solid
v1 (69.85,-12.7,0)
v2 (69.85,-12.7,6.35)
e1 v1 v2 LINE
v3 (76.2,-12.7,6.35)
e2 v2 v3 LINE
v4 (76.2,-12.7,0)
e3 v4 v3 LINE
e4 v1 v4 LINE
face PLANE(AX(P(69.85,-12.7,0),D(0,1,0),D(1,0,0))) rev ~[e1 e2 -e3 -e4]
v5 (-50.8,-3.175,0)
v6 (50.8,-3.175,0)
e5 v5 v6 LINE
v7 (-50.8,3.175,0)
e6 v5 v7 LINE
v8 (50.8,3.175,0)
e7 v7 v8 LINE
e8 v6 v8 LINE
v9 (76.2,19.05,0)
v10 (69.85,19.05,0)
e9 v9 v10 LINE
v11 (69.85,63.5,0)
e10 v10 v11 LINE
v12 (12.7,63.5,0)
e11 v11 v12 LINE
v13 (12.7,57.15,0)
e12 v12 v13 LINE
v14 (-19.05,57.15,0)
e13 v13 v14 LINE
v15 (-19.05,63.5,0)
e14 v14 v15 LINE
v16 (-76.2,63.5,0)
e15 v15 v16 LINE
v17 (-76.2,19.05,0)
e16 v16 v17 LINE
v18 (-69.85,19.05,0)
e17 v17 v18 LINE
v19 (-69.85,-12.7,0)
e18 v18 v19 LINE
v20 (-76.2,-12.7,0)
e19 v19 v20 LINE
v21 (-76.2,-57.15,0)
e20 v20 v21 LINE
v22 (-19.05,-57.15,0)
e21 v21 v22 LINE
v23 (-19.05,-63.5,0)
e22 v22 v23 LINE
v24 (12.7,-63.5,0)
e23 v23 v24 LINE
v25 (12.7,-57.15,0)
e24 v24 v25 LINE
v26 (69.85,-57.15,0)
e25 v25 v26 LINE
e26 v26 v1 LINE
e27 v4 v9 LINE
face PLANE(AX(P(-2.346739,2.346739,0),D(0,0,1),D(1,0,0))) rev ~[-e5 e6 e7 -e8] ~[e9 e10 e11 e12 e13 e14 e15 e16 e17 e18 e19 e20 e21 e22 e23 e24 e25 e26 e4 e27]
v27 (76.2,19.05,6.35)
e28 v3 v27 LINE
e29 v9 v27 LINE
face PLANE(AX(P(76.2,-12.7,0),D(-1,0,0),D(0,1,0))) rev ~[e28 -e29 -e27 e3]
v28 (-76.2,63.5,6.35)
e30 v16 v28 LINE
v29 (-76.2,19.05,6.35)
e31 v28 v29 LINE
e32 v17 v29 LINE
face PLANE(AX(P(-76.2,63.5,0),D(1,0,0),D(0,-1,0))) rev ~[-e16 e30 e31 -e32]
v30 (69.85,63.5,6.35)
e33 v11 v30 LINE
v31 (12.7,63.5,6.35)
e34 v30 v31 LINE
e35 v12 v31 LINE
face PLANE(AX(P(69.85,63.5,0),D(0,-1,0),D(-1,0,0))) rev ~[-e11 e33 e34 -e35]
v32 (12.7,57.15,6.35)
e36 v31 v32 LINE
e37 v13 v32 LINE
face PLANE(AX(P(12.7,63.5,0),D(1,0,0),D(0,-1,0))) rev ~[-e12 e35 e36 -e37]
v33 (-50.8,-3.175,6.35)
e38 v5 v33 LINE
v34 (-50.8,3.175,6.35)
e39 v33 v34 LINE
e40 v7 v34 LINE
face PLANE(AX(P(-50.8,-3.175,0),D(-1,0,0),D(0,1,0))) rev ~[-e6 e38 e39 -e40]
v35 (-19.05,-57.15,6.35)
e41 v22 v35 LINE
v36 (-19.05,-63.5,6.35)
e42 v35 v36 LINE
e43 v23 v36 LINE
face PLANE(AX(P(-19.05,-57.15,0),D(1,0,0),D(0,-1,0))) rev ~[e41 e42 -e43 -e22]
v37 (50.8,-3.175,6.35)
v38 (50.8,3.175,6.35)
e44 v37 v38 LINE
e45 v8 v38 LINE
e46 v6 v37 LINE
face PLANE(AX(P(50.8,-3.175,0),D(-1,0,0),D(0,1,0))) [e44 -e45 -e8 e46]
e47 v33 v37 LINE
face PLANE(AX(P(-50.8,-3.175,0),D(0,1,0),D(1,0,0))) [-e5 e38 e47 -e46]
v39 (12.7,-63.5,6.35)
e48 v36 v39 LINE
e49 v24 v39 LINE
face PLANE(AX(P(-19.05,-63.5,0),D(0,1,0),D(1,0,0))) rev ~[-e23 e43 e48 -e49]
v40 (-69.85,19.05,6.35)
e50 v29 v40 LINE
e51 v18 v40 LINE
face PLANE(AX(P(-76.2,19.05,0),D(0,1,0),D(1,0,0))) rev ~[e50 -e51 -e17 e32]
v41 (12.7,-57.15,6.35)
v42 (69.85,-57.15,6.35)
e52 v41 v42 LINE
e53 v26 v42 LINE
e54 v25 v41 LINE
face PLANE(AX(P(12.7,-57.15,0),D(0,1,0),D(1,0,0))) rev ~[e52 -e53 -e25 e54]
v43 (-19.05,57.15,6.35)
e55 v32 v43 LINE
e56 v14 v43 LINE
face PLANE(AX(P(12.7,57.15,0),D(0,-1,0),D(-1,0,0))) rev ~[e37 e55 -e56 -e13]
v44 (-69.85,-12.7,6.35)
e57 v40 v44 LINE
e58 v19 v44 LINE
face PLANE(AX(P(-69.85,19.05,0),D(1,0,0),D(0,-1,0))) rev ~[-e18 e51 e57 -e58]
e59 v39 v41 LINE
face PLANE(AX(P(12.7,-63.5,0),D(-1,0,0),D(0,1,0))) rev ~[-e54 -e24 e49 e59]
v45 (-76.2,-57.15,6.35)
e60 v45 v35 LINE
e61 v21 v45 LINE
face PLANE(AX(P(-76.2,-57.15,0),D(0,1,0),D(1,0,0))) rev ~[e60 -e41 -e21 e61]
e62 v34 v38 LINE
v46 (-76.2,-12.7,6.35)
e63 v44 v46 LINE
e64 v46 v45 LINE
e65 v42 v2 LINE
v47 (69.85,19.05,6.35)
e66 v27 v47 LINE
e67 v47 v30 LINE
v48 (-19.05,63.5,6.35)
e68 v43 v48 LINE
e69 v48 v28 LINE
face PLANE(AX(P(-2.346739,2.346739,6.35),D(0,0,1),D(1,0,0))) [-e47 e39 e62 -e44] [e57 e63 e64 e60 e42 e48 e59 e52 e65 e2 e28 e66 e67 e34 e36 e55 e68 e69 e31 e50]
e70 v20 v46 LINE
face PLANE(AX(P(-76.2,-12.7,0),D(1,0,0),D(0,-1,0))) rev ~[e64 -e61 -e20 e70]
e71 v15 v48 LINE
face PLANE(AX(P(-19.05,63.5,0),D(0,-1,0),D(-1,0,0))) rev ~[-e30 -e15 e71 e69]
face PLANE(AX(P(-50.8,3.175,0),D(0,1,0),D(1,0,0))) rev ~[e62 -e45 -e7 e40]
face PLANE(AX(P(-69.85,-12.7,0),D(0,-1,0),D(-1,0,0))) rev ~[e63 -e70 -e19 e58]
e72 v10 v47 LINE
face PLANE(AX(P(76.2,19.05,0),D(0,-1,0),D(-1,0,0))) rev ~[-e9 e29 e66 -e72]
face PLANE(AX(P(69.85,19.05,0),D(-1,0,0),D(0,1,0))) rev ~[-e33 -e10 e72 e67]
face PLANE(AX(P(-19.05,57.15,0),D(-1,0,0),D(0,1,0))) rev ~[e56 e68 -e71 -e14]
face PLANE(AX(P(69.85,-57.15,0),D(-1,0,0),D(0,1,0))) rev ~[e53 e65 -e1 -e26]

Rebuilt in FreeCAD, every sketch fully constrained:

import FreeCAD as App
import Part
import Sketcher
Q = App.Units.Quantity

doc = App.newDocument("Part")
params = doc.addObject("Spreadsheet::Sheet", "Params")
for row, (alias, value) in enumerate([
    ("sketch1_width", "4 in"),
    ("pad1_length", "0.25 in"),
], start=1):
    params.set(f"A{row}", alias)
    params.set(f"B{row}", "=" + value)
    params.setAlias(f"B{row}", alias)

body = doc.addObject("PartDesign::Body", "Body")

sketch1 = doc.addObject("Sketcher::SketchObject", "Sketch")
body.addObject(sketch1)
sketch1.AttachmentSupport = (doc.XY_Plane, [""])
sketch1.MapMode = "FlatFace"
sketch1.addGeometry(Part.LineSegment(App.Vector(-76, 64, 0), App.Vector(-76, 19, 0)), False)
sketch1.addGeometry(Part.LineSegment(App.Vector(-76, 19, 0), App.Vector(-70, 19, 0)), False)
sketch1.addGeometry(Part.LineSegment(App.Vector(-70, 19, 0), App.Vector(-70, -13, 0)), False)
sketch1.addGeometry(Part.LineSegment(App.Vector(-70, -13, 0), App.Vector(-76, -13, 0)), False)
sketch1.addGeometry(Part.LineSegment(App.Vector(-76, -13, 0), App.Vector(-76, -57, 0)), False)
sketch1.addGeometry(Part.LineSegment(App.Vector(-76, -57, 0), App.Vector(-19, -57, 0)), False)
sketch1.addGeometry(Part.LineSegment(App.Vector(-19, -57, 0), App.Vector(-19, -64, 0)), False)
sketch1.addGeometry(Part.LineSegment(App.Vector(-19, -64, 0), App.Vector(13, -64, 0)), False)
sketch1.addGeometry(Part.LineSegment(App.Vector(13, -64, 0), App.Vector(13, -57, 0)), False)
sketch1.addGeometry(Part.LineSegment(App.Vector(13, -57, 0), App.Vector(70, -57, 0)), False)
sketch1.addGeometry(Part.LineSegment(App.Vector(70, -57, 0), App.Vector(70, -13, 0)), False)
sketch1.addGeometry(Part.LineSegment(App.Vector(70, -13, 0), App.Vector(76, -13, 0)), False)
sketch1.addGeometry(Part.LineSegment(App.Vector(76, -13, 0), App.Vector(76, 19, 0)), False)
sketch1.addGeometry(Part.LineSegment(App.Vector(76, 19, 0), App.Vector(70, 19, 0)), False)
sketch1.addGeometry(Part.LineSegment(App.Vector(70, 19, 0), App.Vector(70, 64, 0)), False)
sketch1.addGeometry(Part.LineSegment(App.Vector(70, 64, 0), App.Vector(13, 64, 0)), False)
sketch1.addGeometry(Part.LineSegment(App.Vector(13, 64, 0), App.Vector(13, 57, 0)), False)
sketch1.addGeometry(Part.LineSegment(App.Vector(13, 57, 0), App.Vector(-19, 57, 0)), False)
sketch1.addGeometry(Part.LineSegment(App.Vector(-19, 57, 0), App.Vector(-19, 64, 0)), False)
sketch1.addGeometry(Part.LineSegment(App.Vector(-19, 64, 0), App.Vector(-76, 64, 0)), False)
sketch1.addGeometry(Part.LineSegment(App.Vector(51, -3, 0), App.Vector(-51, -3, 0)), False)
sketch1.addGeometry(Part.LineSegment(App.Vector(-51, -3, 0), App.Vector(-51, 3, 0)), False)
sketch1.addGeometry(Part.LineSegment(App.Vector(-51, 3, 0), App.Vector(51, 3, 0)), False)
sketch1.addGeometry(Part.LineSegment(App.Vector(51, 3, 0), App.Vector(51, -3, 0)), False)
sketch1.addConstraint(Sketcher.Constraint("Coincident", 0, 2, 1, 1))
sketch1.addConstraint(Sketcher.Constraint("Coincident", 1, 2, 2, 1))
sketch1.addConstraint(Sketcher.Constraint("Coincident", 2, 2, 3, 1))
sketch1.addConstraint(Sketcher.Constraint("Coincident", 3, 2, 4, 1))
sketch1.addConstraint(Sketcher.Constraint("Coincident", 4, 2, 5, 1))
sketch1.addConstraint(Sketcher.Constraint("Coincident", 5, 2, 6, 1))
sketch1.addConstraint(Sketcher.Constraint("Coincident", 6, 2, 7, 1))
sketch1.addConstraint(Sketcher.Constraint("Coincident", 7, 2, 8, 1))
sketch1.addConstraint(Sketcher.Constraint("Coincident", 8, 2, 9, 1))
sketch1.addConstraint(Sketcher.Constraint("Coincident", 9, 2, 10, 1))
sketch1.addConstraint(Sketcher.Constraint("Coincident", 10, 2, 11, 1))
sketch1.addConstraint(Sketcher.Constraint("Coincident", 11, 2, 12, 1))
sketch1.addConstraint(Sketcher.Constraint("Coincident", 12, 2, 13, 1))
sketch1.addConstraint(Sketcher.Constraint("Coincident", 13, 2, 14, 1))
sketch1.addConstraint(Sketcher.Constraint("Coincident", 14, 2, 15, 1))
sketch1.addConstraint(Sketcher.Constraint("Coincident", 15, 2, 16, 1))
sketch1.addConstraint(Sketcher.Constraint("Coincident", 16, 2, 17, 1))
sketch1.addConstraint(Sketcher.Constraint("Coincident", 17, 2, 18, 1))
sketch1.addConstraint(Sketcher.Constraint("Coincident", 18, 2, 19, 1))
sketch1.addConstraint(Sketcher.Constraint("Coincident", 19, 2, 0, 1))
sketch1.addConstraint(Sketcher.Constraint("Coincident", 20, 2, 21, 1))
sketch1.addConstraint(Sketcher.Constraint("Coincident", 21, 2, 22, 1))
sketch1.addConstraint(Sketcher.Constraint("Coincident", 22, 2, 23, 1))
sketch1.addConstraint(Sketcher.Constraint("Coincident", 23, 2, 20, 1))
sketch1.addConstraint(Sketcher.Constraint("Vertical", 0))
sketch1.addConstraint(Sketcher.Constraint("Horizontal", 1))
sketch1.addConstraint(Sketcher.Constraint("Vertical", 2))
sketch1.addConstraint(Sketcher.Constraint("Horizontal", 3))
sketch1.addConstraint(Sketcher.Constraint("Vertical", 4))
sketch1.addConstraint(Sketcher.Constraint("Horizontal", 5))
sketch1.addConstraint(Sketcher.Constraint("Vertical", 6))
sketch1.addConstraint(Sketcher.Constraint("Horizontal", 7))
sketch1.addConstraint(Sketcher.Constraint("Vertical", 8))
sketch1.addConstraint(Sketcher.Constraint("Horizontal", 9))
sketch1.addConstraint(Sketcher.Constraint("Vertical", 10))
sketch1.addConstraint(Sketcher.Constraint("Horizontal", 11))
sketch1.addConstraint(Sketcher.Constraint("Vertical", 12))
sketch1.addConstraint(Sketcher.Constraint("Horizontal", 13))
sketch1.addConstraint(Sketcher.Constraint("Vertical", 14))
sketch1.addConstraint(Sketcher.Constraint("Horizontal", 15))
sketch1.addConstraint(Sketcher.Constraint("Vertical", 16))
sketch1.addConstraint(Sketcher.Constraint("Horizontal", 17))
sketch1.addConstraint(Sketcher.Constraint("Vertical", 18))
sketch1.addConstraint(Sketcher.Constraint("Horizontal", 19))
sketch1.addConstraint(Sketcher.Constraint("Horizontal", 20))
sketch1.addConstraint(Sketcher.Constraint("Vertical", 21))
sketch1.addConstraint(Sketcher.Constraint("Horizontal", 22))
sketch1.addConstraint(Sketcher.Constraint("Vertical", 23))
sketch1.addConstraint(Sketcher.Constraint("Symmetric", 20, 2, 22, 2, -1, 1))
sketch1.addConstraint(Sketcher.Constraint("Symmetric", 2, 2, 10, 2, -2))
sketch1.addConstraint(Sketcher.Constraint("Symmetric", 0, 2, 12, 2, -2))
sketch1.addConstraint(Sketcher.Constraint("Symmetric", 7, 2, 15, 2, -1))
sketch1.addConstraint(Sketcher.Constraint("Symmetric", 5, 2, 17, 2, -1))
sketch1.addConstraint(Sketcher.Constraint("Horizontal", 5, 2, 8, 2))
sketch1.addConstraint(Sketcher.Constraint("Horizontal", 15, 2, 18, 2))
sketch1.addConstraint(Sketcher.Constraint("Vertical", 0, 2, 3, 2))
sketch1.addConstraint(Sketcher.Constraint("Vertical", 10, 2, 13, 2))
sketch1.addConstraint(Sketcher.Constraint("Equal", 5, 9))
sketch1.addConstraint(Sketcher.Constraint("Equal", 17, 2))
sketch1.addConstraint(Sketcher.Constraint("Equal", 0, 4))
sketch1.addConstraint(Sketcher.Constraint("Equal", 13, 6))
sketch1.addConstraint(Sketcher.Constraint("Equal", 18, 21))
sketch1.addConstraint(Sketcher.Constraint("DistanceX", 20, 2, 20, 1, Q("4 in")))
sketch1.addConstraint(Sketcher.Constraint("DistanceX", 0, 2, -1, 1, Q("3 in")))
sketch1.addConstraint(Sketcher.Constraint("DistanceY", 4, 2, 0, 2, Q("3 in")))
sketch1.addConstraint(Sketcher.Constraint("DistanceX", 2, 2, 5, 2, Q("2 in")))
sketch1.addConstraint(Sketcher.Constraint("DistanceY", 6, 2, 2, 2, Q("2 in")))
sketch1.setExpression("Constraints[62]", "Params.sketch1_width")
pad1 = doc.addObject("PartDesign::Pad", "Pad")
body.addObject(pad1)
pad1.Profile = sketch1
pad1.setExpression("Length", "Params.pad1_length")

doc.recompute()
